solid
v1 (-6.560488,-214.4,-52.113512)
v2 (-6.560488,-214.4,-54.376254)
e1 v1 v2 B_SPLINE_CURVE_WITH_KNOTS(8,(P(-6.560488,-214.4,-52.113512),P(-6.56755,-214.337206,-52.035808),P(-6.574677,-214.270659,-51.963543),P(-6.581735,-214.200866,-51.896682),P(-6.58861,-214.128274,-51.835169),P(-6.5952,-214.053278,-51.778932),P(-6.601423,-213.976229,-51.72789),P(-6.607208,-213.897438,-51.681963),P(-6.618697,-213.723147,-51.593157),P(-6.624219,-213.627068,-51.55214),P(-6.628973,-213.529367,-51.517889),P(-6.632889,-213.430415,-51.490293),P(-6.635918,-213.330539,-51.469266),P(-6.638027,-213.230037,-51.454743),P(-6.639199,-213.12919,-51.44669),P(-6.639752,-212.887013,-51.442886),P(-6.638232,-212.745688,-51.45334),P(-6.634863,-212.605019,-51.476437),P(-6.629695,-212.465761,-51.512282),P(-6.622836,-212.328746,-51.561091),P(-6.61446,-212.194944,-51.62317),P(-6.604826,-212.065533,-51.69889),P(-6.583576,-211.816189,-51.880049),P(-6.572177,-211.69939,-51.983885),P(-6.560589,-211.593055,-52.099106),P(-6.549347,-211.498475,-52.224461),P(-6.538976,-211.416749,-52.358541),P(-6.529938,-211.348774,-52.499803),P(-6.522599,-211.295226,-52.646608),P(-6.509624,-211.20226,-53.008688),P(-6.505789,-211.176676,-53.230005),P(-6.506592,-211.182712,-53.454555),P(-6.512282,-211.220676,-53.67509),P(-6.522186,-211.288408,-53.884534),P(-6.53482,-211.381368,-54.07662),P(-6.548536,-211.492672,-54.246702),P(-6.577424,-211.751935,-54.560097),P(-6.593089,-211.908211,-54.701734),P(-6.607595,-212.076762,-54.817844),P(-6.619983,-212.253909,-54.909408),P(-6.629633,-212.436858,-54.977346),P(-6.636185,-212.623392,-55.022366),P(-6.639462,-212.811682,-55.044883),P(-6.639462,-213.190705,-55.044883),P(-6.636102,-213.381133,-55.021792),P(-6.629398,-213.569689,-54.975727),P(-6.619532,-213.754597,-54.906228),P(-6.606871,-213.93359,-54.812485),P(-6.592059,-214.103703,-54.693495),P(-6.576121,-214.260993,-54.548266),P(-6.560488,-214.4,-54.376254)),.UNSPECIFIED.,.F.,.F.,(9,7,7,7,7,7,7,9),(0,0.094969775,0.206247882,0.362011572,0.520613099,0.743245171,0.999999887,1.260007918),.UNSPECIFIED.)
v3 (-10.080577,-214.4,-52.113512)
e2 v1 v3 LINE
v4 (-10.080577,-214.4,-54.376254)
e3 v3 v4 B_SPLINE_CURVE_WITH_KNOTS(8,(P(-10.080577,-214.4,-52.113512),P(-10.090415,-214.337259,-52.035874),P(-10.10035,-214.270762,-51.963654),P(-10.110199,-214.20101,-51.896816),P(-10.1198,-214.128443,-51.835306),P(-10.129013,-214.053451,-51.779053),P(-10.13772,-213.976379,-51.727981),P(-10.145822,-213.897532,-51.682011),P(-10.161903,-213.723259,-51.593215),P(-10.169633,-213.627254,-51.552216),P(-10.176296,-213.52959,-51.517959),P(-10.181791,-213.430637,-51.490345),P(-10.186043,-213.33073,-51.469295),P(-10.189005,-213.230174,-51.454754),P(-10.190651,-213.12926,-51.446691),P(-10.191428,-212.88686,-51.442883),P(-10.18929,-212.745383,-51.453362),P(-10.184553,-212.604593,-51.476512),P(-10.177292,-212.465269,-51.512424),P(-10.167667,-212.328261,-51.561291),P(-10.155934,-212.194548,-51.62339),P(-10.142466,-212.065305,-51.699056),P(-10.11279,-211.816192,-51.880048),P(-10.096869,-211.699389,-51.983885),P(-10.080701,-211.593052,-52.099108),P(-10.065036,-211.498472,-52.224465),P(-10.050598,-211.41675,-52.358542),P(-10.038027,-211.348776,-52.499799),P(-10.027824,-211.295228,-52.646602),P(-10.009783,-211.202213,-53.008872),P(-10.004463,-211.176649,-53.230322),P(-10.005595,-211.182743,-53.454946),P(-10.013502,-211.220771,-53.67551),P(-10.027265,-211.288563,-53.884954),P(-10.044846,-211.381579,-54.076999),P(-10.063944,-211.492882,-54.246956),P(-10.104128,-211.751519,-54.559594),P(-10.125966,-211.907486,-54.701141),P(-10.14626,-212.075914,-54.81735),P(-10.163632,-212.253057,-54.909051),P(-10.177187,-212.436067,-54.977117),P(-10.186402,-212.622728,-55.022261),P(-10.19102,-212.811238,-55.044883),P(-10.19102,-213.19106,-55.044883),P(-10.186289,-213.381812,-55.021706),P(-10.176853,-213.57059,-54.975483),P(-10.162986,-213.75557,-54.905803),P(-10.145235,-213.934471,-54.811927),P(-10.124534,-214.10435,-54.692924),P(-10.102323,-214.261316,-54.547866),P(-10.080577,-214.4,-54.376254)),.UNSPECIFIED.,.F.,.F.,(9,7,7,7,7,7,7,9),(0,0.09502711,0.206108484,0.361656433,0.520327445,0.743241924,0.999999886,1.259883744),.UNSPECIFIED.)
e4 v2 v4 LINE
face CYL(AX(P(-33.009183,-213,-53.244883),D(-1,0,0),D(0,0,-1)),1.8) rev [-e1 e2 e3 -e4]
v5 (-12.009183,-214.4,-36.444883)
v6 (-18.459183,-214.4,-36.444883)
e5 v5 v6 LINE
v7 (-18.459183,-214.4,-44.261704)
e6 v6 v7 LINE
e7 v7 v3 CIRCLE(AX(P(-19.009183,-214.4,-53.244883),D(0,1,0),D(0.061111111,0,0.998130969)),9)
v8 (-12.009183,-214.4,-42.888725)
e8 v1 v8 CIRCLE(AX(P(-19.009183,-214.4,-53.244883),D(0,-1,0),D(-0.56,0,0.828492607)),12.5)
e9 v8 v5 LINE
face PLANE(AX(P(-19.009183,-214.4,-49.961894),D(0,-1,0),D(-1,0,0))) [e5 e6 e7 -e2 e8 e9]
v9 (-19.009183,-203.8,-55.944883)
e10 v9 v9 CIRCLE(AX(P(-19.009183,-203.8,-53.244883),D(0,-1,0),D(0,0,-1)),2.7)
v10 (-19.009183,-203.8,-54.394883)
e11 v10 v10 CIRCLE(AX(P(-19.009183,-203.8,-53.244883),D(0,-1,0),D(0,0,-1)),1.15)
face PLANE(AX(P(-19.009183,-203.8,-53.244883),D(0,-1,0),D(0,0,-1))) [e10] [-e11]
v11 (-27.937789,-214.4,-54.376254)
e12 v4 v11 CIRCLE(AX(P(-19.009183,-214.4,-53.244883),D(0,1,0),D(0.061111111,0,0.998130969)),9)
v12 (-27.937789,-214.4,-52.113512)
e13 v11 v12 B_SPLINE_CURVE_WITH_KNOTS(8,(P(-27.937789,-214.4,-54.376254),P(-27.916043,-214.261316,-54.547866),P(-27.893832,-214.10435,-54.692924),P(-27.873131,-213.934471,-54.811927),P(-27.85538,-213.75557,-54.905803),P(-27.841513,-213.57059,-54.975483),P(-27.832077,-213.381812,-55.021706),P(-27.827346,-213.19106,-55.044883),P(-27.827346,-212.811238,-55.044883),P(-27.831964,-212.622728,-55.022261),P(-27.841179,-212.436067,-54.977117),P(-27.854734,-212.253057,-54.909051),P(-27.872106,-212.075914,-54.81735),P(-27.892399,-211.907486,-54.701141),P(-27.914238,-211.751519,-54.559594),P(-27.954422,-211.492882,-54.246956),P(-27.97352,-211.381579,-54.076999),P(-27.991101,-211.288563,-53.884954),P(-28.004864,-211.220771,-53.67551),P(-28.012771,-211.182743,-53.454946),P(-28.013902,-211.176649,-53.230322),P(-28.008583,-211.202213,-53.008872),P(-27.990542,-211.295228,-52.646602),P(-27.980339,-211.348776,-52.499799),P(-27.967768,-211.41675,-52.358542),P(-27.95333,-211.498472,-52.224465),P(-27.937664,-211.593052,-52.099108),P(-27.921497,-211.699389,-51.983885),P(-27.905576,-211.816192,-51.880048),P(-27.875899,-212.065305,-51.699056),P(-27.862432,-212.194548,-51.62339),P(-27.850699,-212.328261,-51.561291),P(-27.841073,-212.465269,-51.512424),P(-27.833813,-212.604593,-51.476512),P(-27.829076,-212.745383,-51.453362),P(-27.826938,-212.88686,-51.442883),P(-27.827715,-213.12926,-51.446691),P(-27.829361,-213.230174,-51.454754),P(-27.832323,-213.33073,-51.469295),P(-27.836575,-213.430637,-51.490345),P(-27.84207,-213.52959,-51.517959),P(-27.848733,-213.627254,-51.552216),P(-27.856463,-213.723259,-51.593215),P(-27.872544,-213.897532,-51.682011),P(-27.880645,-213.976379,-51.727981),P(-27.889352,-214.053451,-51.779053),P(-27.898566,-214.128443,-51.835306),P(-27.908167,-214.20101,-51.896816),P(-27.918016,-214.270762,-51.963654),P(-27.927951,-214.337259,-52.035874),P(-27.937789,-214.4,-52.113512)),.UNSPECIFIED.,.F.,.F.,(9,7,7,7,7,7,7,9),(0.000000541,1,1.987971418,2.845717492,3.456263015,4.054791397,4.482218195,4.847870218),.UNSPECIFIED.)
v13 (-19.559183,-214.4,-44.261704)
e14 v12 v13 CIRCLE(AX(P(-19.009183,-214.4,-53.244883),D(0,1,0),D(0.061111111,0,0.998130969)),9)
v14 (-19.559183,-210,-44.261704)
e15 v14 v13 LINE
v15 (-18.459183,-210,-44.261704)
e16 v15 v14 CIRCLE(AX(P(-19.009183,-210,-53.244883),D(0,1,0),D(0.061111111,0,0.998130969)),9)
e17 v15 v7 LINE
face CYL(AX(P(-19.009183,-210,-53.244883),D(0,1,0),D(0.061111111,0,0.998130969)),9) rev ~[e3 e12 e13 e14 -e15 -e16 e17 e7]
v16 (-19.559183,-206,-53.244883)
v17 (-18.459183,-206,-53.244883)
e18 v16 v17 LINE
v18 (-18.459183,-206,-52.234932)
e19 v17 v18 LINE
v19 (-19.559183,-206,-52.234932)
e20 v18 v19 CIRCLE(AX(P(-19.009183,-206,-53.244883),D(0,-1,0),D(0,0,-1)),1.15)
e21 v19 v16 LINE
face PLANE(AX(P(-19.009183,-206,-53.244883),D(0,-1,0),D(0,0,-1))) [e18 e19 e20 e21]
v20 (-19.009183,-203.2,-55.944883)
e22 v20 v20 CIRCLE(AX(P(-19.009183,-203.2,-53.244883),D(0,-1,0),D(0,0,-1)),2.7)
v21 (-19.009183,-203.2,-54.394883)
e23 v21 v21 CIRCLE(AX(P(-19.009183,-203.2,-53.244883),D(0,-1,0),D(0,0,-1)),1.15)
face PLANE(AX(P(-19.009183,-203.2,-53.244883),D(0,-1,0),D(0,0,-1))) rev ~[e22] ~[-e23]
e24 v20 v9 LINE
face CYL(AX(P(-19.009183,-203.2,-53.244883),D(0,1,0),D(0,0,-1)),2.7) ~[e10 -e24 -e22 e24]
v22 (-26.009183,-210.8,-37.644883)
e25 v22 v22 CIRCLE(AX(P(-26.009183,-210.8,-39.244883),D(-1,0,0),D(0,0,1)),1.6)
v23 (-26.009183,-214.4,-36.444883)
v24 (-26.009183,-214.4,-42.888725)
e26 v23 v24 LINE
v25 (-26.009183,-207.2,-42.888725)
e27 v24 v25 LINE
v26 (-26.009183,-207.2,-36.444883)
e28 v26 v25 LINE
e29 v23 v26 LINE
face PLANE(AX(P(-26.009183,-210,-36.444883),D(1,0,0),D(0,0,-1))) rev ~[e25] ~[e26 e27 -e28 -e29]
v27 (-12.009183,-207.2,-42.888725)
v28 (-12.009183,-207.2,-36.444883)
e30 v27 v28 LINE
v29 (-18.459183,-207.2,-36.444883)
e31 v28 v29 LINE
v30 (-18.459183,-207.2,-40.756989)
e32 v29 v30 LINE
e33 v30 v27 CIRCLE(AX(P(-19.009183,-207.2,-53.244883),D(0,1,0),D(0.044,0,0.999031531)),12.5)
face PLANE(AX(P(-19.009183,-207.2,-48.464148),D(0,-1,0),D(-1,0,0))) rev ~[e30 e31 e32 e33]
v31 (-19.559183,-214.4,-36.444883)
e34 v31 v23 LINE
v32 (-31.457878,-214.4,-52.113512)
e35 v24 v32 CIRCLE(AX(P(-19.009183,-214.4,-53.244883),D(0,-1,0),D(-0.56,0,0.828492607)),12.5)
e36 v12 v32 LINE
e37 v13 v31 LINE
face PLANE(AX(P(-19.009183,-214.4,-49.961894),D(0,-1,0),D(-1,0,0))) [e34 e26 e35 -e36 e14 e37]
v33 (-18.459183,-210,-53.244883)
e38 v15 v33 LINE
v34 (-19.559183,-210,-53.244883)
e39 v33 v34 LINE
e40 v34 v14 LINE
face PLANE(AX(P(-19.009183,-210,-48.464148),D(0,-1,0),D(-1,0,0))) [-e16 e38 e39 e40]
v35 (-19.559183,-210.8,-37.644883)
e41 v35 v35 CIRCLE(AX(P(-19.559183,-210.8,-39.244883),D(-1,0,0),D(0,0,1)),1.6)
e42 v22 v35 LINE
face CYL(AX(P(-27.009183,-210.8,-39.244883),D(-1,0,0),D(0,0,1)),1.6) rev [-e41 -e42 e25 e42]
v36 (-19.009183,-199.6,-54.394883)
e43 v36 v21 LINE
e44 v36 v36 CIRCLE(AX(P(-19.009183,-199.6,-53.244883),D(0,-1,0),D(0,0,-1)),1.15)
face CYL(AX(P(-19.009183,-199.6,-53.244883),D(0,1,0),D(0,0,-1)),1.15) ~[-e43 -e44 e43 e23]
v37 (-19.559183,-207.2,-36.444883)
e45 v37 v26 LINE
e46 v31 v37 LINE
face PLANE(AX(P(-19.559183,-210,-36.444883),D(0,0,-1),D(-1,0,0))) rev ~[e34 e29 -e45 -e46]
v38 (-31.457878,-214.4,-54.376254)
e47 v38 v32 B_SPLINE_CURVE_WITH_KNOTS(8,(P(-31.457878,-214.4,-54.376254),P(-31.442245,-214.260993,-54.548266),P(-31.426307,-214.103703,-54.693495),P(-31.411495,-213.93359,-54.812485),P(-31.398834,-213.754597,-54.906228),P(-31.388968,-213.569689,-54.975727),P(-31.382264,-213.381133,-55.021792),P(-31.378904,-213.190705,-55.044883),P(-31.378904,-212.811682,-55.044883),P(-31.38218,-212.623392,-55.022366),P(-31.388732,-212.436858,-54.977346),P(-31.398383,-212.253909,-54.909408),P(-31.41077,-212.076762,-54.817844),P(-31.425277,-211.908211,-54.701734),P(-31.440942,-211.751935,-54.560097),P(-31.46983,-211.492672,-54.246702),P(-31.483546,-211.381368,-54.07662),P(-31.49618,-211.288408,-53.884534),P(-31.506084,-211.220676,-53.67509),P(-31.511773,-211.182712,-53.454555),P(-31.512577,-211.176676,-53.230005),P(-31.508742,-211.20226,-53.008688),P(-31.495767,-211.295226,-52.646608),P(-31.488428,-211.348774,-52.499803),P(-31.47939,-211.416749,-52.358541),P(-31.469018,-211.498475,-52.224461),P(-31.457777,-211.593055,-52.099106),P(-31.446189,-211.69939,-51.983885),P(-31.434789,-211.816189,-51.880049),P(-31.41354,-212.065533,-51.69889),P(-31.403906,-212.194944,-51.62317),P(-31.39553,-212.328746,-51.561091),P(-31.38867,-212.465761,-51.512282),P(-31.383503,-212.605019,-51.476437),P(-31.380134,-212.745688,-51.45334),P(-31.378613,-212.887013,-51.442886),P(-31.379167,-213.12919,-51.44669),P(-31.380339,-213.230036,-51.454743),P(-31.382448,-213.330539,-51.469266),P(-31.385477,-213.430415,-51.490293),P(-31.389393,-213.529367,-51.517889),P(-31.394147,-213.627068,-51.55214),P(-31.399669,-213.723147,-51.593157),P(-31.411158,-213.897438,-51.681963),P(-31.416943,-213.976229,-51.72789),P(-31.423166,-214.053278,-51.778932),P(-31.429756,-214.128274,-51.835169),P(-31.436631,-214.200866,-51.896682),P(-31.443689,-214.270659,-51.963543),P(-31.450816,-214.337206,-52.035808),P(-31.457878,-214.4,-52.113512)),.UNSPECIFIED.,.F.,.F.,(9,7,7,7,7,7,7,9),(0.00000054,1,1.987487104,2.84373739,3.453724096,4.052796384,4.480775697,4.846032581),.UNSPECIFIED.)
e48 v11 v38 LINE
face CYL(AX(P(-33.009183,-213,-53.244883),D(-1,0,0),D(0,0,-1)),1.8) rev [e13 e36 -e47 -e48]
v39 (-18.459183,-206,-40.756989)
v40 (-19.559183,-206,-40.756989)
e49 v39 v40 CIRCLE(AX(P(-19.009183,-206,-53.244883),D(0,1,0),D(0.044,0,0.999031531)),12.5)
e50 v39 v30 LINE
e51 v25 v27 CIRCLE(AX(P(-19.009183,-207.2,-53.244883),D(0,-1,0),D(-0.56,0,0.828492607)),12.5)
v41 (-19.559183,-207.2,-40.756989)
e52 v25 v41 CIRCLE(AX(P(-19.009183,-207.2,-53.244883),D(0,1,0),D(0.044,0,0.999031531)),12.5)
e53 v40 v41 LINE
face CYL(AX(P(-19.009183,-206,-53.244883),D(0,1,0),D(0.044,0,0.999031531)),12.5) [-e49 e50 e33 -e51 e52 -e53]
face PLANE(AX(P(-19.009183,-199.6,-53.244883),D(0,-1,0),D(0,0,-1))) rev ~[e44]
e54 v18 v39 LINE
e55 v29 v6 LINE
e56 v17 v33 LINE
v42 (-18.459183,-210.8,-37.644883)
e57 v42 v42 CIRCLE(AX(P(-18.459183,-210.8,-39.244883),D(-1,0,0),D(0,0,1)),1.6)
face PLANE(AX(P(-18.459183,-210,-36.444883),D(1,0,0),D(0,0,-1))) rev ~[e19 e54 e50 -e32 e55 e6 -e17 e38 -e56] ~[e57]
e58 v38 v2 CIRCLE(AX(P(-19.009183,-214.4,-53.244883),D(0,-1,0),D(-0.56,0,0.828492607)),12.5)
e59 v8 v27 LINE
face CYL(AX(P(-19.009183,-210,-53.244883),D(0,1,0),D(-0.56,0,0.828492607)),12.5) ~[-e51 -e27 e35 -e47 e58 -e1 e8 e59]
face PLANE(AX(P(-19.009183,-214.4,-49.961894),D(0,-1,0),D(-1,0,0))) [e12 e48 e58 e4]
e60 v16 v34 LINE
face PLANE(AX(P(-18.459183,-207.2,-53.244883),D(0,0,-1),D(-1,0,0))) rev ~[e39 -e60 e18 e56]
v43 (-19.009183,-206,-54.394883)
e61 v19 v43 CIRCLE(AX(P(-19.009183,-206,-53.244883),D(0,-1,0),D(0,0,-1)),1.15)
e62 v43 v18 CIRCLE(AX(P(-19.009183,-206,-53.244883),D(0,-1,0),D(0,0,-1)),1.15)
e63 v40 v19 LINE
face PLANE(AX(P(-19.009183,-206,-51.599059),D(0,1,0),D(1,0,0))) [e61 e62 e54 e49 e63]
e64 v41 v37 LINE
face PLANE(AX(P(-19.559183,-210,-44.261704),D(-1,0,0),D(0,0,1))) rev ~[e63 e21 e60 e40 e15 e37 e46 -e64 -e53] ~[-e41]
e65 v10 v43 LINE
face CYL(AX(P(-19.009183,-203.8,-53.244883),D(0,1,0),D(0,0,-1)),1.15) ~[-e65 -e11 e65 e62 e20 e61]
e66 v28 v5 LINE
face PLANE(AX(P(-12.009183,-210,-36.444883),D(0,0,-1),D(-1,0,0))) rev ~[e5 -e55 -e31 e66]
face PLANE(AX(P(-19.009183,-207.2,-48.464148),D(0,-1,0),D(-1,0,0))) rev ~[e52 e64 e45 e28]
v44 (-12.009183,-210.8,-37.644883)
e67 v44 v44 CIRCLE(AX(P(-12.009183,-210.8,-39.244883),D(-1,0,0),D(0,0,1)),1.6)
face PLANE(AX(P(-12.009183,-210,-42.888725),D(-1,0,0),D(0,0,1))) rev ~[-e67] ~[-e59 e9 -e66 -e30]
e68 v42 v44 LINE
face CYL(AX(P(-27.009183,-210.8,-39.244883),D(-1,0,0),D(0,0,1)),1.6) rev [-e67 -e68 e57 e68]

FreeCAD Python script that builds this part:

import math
import FreeCAD as App
import Part
import Sketcher

V = App.Vector

doc = App.newDocument("Part")
body = doc.addObject("PartDesign::Body", "Body")

# Sketch on XZ plane
sketch1 = body.newObject("Sketcher::SketchObject", "Sketch")
sketch1.AttachmentSupport = (doc.getObject("XZ_Plane"), [""])
sketch1.MapMode = "FlatFace"
sketch1.AttachmentOffset = App.Placement(V(0, 0, 199.6), App.Rotation())
sketch1.addGeometry(Part.Circle(V(-19, -53.2, 0), V(0, 0, 1), 1.1), False)
sketch1.addConstraint([
    Sketcher.Constraint("Diameter", 0, 2.3),
    Sketcher.Constraint("DistanceX", 0, 3, -1, 1, 19.009183),
    Sketcher.Constraint("DistanceY", 0, 3, -1, 1, 53.244883),
])
pad1 = body.newObject("PartDesign::Pad", "Pad")
pad1.Profile = sketch1
pad1.Length = 3.6

# Sketch on XZ plane
sketch2 = body.newObject("Sketcher::SketchObject", "Sketch001")
sketch2.AttachmentSupport = (doc.getObject("XZ_Plane"), [""])
sketch2.MapMode = "FlatFace"
sketch2.AttachmentOffset = App.Placement(V(0, 0, 203.2), App.Rotation())
sketch2.addGeometry(Part.Circle(V(-19, -53.2, 0), V(0, 0, 1), 2.7), False)
sketch2.addConstraint([
    Sketcher.Constraint("Diameter", 0, 5.4),
    Sketcher.Constraint("DistanceX", 0, 3, -1, 1, 19.009183),
    Sketcher.Constraint("DistanceY", 0, 3, -1, 1, 53.244883),
])
pad2 = body.newObject("PartDesign::Pad", "Pad001")
pad2.Profile = sketch2
pad2.Length = 0.6

# Sketch on XZ plane
sketch3 = body.newObject("Sketcher::SketchObject", "Sketch002")
sketch3.AttachmentSupport = (doc.getObject("XZ_Plane"), [""])
sketch3.MapMode = "FlatFace"
sketch3.AttachmentOffset = App.Placement(V(0, 0, 203.8), App.Rotation())
sketch3.addGeometry(Part.Circle(V(-19, -53.2, 0), V(0, 0, 1), 1.1), False)
sketch3.addConstraint([
    Sketcher.Constraint("Diameter", 0, 2.3),
    Sketcher.Constraint("DistanceX", 0, 3, -1, 1, 19.009183),
    Sketcher.Constraint("DistanceY", 0, 3, -1, 1, 53.244883),
])
pad3 = body.newObject("PartDesign::Pad", "Pad002")
pad3.Profile = sketch3
pad3.Length = 2.2

# Sketch on XZ plane
sketch4 = body.newObject("Sketcher::SketchObject", "Sketch003")
sketch4.AttachmentSupport = (doc.getObject("XZ_Plane"), [""])
sketch4.MapMode = "FlatFace"
sketch4.AttachmentOffset = App.Placement(V(0, 0, 206), App.Rotation())
sketch4.addGeometry([
    Part.LineSegment(V(-18.5, -40.8, 0), V(-18.5, -53.2, 0)),
    Part.LineSegment(V(-18.5, -53.2, 0), V(-19.6, -53.2, 0)),
    Part.LineSegment(V(-19.6, -53.2, 0), V(-19.6, -40.8, 0)),
    Part.ArcOfCircle(Part.Circle(V(-19, -53.2, 0), V(0, 0, 1), 12.5), math.radians(93), math.radians(447)),
], False)
sketch4.addConstraint([
    Sketcher.Constraint("Coincident", 0, 2, 1, 1),
    Sketcher.Constraint("Coincident", 1, 2, 2, 1),
    Sketcher.Constraint("Coincident", 2, 2, 3, 1),
    Sketcher.Constraint("Coincident", 3, 2, 0, 1),
    Sketcher.Constraint("Vertical", 0),
    Sketcher.Constraint("Horizontal", 1),
    Sketcher.Constraint("Vertical", 2),
    Sketcher.Constraint("Horizontal", 3, 3, 0, 2),
    Sketcher.Constraint("Horizontal", 2, 2, 3, 2),
    Sketcher.Constraint("Radius", 3, 12.5),
    Sketcher.Constraint("DistanceX", 1, 2, 1, 1, 1.1),
    Sketcher.Constraint("DistanceY", 2, 2, -1, 1, 40.756989),
    Sketcher.Constraint("DistanceX", 3, 3, -1, 1, 19.009183),
])
pad4 = body.newObject("PartDesign::Pad", "Pad003")
pad4.Profile = sketch4
pad4.Length = 1.2

# Sketch on XZ plane
sketch5 = body.newObject("Sketcher::SketchObject", "Sketch004")
sketch5.AttachmentSupport = (doc.getObject("XZ_Plane"), [""])
sketch5.MapMode = "FlatFace"
sketch5.AttachmentOffset = App.Placement(V(0, 0, 207.2), App.Rotation())
sketch5.addGeometry([
    Part.LineSegment(V(-12, -42.9, 0), V(-12, -36.4, 0)),  # 0
    Part.LineSegment(V(-12, -36.4, 0), V(-18.5, -36.4, 0)),  # 1
    Part.LineSegment(V(-18.5, -36.4, 0), V(-18.5, -53.2, 0)),  # 2
    Part.LineSegment(V(-18.5, -53.2, 0), V(-19.6, -53.2, 0)),  # 3
    Part.LineSegment(V(-19.6, -53.2, 0), V(-19.6, -36.4, 0)),  # 4
    Part.LineSegment(V(-19.6, -36.4, 0), V(-26, -36.4, 0)),  # 5
    Part.LineSegment(V(-26, -36.4, 0), V(-26, -42.9, 0)),  # 6
    Part.ArcOfCircle(Part.Circle(V(-19, -53.2, 0), V(0, 0, 1), 12.5), math.radians(124), math.radians(416)),  # 7
], False)
sketch5.addConstraint([
    Sketcher.Constraint("Coincident", 0, 2, 1, 1),
    Sketcher.Constraint("Coincident", 1, 2, 2, 1),
    Sketcher.Constraint("Coincident", 2, 2, 3, 1),
    Sketcher.Constraint("Coincident", 3, 2, 4, 1),
    Sketcher.Constraint("Coincident", 4, 2, 5, 1),
    Sketcher.Constraint("Coincident", 5, 2, 6, 1),
    Sketcher.Constraint("Coincident", 6, 2, 7, 1),
    Sketcher.Constraint("Coincident", 7, 2, 0, 1),
    Sketcher.Constraint("Vertical", 0),
    Sketcher.Constraint("Horizontal", 1),
    Sketcher.Constraint("Vertical", 2),
    Sketcher.Constraint("Horizontal", 3),
    Sketcher.Constraint("Vertical", 4),
    Sketcher.Constraint("Horizontal", 5),
    Sketcher.Constraint("Vertical", 6),
    Sketcher.Constraint("Horizontal", 7, 3, 2, 2),
    Sketcher.Constraint("Horizontal", 1, 2, 4, 2),
    Sketcher.Constraint("Horizontal", 6, 2, 7, 2),
    Sketcher.Constraint("Equal", 1, 5),
    Sketcher.Constraint("Radius", 7, 12.5),
    Sketcher.Constraint("DistanceX", 3, 2, 3, 1, 1.1),
    Sketcher.Constraint("DistanceY", 2, 2, 2, 1, 16.8),
    Sketcher.Constraint("DistanceX", 7, 3, 0, 2, 7.0),
    Sketcher.Constraint("DistanceX", 7, 3, -1, 1, 19.009183),
    Sketcher.Constraint("DistanceY", 7, 3, -1, 1, 53.244883),
])
pad5 = body.newObject("PartDesign::Pad", "Pad004")
pad5.Profile = sketch5
pad5.Length = 2.8

# Sketch on XZ plane
sketch6 = body.newObject("Sketcher::SketchObject", "Sketch005")
sketch6.AttachmentSupport = (doc.getObject("XZ_Plane"), [""])
sketch6.MapMode = "FlatFace"
sketch6.AttachmentOffset = App.Placement(V(0, 0, 210), App.Rotation())
sketch6.addGeometry([
    Part.LineSegment(V(-12, -42.9, 0), V(-12, -36.4, 0)),  # 0
    Part.LineSegment(V(-12, -36.4, 0), V(-18.5, -36.4, 0)),  # 1
    Part.LineSegment(V(-18.5, -36.4, 0), V(-18.5, -44.3, 0)),  # 2
    Part.ArcOfCircle(Part.Circle(V(-19, -53.2, 0), V(0, 0, 1), 9), math.radians(94), math.radians(446)),  # 3
    Part.LineSegment(V(-19.6, -44.3, 0), V(-19.6, -36.4, 0)),  # 4
    Part.LineSegment(V(-19.6, -36.4, 0), V(-26, -36.4, 0)),  # 5
    Part.LineSegment(V(-26, -36.4, 0), V(-26, -42.9, 0)),  # 6
    Part.ArcOfCircle(Part.Circle(V(-19, -53.2, 0), V(0, 0, 1), 12.5), math.radians(124), math.radians(416)),  # 7
], False)
sketch6.addConstraint([
    Sketcher.Constraint("Coincident", 0, 2, 1, 1),
    Sketcher.Constraint("Coincident", 1, 2, 2, 1),
    Sketcher.Constraint("Coincident", 2, 2, 3, 2),
    Sketcher.Constraint("Coincident", 3, 1, 4, 1),
    Sketcher.Constraint("Coincident", 4, 2, 5, 1),
    Sketcher.Constraint("Coincident", 5, 2, 6, 1),
    Sketcher.Constraint("Coincident", 6, 2, 7, 1),
    Sketcher.Constraint("Coincident", 7, 2, 0, 1),
    Sketcher.Constraint("Vertical", 0),
    Sketcher.Constraint("Horizontal", 1),
    Sketcher.Constraint("Vertical", 2),
    Sketcher.Constraint("Vertical", 4),
    Sketcher.Constraint("Horizontal", 5),
    Sketcher.Constraint("Vertical", 6),
    Sketcher.Constraint("Coincident", 7, 3, 3, 3),
    Sketcher.Constraint("Horizontal", 2, 2, 3, 1),
    Sketcher.Constraint("Horizontal", 1, 2, 4, 2),
    Sketcher.Constraint("Horizontal", 6, 2, 7, 2),
    Sketcher.Constraint("Radius", 3, 9.0),
    Sketcher.Constraint("Radius", 7, 12.5),
    Sketcher.Constraint("DistanceX", 3, 3, 0, 2, 7.0),
    Sketcher.Constraint("DistanceX", 1, 2, 1, 1, 6.45),
    Sketcher.Constraint("DistanceY", 3, 3, 0, 2, 16.8),
    Sketcher.Constraint("DistanceX", 3, 3, -1, 1, 19.009183),
    Sketcher.Constraint("DistanceY", 3, 3, -1, 1, 53.244883),
])
pad6 = body.newObject("PartDesign::Pad", "Pad005")
pad6.Profile = sketch6
pad6.Length = 4.4

# Sketch on YZ plane
sketch7 = body.newObject("Sketcher::SketchObject", "Sketch006")
sketch7.AttachmentSupport = (doc.getObject("YZ_Plane"), [""])
sketch7.MapMode = "FlatFace"
sketch7.AttachmentOffset = App.Placement(V(0, 0, -33.009183), App.Rotation())
sketch7.addGeometry(Part.Circle(V(-213, -53.2, 0), V(0, 0, 1), 1.8), False)
sketch7.addConstraint([
    Sketcher.Constraint("Diameter", 0, 3.6),
    Sketcher.Constraint("DistanceX", 0, 3, -1, 1, 213.0),
    Sketcher.Constraint("DistanceY", 0, 3, -1, 1, 53.244883),
])
pocket1 = body.newObject("PartDesign::Pocket", "Pocket")
pocket1.Profile = sketch7
pocket1.Length = 28
pocket1.Reversed = True

# Sketch on YZ plane
sketch8 = body.newObject("Sketcher::SketchObject", "Sketch007")
sketch8.AttachmentSupport = (doc.getObject("YZ_Plane"), [""])
sketch8.MapMode = "FlatFace"
sketch8.AttachmentOffset = App.Placement(V(0, 0, -27.009183), App.Rotation())
sketch8.addGeometry(Part.Circle(V(-210.8, -39.2, 0), V(0, 0, 1), 1.6), False)
sketch8.addConstraint([
    Sketcher.Constraint("Diameter", 0, 3.2),
    Sketcher.Constraint("DistanceX", 0, 3, -1, 1, 210.8),
    Sketcher.Constraint("DistanceY", 0, 3, -1, 1, 39.244883),
])
pocket2 = body.newObject("PartDesign::Pocket", "Pocket001")
pocket2.Profile = sketch8
pocket2.Length = 16
pocket2.Reversed = True

doc.recompute()
